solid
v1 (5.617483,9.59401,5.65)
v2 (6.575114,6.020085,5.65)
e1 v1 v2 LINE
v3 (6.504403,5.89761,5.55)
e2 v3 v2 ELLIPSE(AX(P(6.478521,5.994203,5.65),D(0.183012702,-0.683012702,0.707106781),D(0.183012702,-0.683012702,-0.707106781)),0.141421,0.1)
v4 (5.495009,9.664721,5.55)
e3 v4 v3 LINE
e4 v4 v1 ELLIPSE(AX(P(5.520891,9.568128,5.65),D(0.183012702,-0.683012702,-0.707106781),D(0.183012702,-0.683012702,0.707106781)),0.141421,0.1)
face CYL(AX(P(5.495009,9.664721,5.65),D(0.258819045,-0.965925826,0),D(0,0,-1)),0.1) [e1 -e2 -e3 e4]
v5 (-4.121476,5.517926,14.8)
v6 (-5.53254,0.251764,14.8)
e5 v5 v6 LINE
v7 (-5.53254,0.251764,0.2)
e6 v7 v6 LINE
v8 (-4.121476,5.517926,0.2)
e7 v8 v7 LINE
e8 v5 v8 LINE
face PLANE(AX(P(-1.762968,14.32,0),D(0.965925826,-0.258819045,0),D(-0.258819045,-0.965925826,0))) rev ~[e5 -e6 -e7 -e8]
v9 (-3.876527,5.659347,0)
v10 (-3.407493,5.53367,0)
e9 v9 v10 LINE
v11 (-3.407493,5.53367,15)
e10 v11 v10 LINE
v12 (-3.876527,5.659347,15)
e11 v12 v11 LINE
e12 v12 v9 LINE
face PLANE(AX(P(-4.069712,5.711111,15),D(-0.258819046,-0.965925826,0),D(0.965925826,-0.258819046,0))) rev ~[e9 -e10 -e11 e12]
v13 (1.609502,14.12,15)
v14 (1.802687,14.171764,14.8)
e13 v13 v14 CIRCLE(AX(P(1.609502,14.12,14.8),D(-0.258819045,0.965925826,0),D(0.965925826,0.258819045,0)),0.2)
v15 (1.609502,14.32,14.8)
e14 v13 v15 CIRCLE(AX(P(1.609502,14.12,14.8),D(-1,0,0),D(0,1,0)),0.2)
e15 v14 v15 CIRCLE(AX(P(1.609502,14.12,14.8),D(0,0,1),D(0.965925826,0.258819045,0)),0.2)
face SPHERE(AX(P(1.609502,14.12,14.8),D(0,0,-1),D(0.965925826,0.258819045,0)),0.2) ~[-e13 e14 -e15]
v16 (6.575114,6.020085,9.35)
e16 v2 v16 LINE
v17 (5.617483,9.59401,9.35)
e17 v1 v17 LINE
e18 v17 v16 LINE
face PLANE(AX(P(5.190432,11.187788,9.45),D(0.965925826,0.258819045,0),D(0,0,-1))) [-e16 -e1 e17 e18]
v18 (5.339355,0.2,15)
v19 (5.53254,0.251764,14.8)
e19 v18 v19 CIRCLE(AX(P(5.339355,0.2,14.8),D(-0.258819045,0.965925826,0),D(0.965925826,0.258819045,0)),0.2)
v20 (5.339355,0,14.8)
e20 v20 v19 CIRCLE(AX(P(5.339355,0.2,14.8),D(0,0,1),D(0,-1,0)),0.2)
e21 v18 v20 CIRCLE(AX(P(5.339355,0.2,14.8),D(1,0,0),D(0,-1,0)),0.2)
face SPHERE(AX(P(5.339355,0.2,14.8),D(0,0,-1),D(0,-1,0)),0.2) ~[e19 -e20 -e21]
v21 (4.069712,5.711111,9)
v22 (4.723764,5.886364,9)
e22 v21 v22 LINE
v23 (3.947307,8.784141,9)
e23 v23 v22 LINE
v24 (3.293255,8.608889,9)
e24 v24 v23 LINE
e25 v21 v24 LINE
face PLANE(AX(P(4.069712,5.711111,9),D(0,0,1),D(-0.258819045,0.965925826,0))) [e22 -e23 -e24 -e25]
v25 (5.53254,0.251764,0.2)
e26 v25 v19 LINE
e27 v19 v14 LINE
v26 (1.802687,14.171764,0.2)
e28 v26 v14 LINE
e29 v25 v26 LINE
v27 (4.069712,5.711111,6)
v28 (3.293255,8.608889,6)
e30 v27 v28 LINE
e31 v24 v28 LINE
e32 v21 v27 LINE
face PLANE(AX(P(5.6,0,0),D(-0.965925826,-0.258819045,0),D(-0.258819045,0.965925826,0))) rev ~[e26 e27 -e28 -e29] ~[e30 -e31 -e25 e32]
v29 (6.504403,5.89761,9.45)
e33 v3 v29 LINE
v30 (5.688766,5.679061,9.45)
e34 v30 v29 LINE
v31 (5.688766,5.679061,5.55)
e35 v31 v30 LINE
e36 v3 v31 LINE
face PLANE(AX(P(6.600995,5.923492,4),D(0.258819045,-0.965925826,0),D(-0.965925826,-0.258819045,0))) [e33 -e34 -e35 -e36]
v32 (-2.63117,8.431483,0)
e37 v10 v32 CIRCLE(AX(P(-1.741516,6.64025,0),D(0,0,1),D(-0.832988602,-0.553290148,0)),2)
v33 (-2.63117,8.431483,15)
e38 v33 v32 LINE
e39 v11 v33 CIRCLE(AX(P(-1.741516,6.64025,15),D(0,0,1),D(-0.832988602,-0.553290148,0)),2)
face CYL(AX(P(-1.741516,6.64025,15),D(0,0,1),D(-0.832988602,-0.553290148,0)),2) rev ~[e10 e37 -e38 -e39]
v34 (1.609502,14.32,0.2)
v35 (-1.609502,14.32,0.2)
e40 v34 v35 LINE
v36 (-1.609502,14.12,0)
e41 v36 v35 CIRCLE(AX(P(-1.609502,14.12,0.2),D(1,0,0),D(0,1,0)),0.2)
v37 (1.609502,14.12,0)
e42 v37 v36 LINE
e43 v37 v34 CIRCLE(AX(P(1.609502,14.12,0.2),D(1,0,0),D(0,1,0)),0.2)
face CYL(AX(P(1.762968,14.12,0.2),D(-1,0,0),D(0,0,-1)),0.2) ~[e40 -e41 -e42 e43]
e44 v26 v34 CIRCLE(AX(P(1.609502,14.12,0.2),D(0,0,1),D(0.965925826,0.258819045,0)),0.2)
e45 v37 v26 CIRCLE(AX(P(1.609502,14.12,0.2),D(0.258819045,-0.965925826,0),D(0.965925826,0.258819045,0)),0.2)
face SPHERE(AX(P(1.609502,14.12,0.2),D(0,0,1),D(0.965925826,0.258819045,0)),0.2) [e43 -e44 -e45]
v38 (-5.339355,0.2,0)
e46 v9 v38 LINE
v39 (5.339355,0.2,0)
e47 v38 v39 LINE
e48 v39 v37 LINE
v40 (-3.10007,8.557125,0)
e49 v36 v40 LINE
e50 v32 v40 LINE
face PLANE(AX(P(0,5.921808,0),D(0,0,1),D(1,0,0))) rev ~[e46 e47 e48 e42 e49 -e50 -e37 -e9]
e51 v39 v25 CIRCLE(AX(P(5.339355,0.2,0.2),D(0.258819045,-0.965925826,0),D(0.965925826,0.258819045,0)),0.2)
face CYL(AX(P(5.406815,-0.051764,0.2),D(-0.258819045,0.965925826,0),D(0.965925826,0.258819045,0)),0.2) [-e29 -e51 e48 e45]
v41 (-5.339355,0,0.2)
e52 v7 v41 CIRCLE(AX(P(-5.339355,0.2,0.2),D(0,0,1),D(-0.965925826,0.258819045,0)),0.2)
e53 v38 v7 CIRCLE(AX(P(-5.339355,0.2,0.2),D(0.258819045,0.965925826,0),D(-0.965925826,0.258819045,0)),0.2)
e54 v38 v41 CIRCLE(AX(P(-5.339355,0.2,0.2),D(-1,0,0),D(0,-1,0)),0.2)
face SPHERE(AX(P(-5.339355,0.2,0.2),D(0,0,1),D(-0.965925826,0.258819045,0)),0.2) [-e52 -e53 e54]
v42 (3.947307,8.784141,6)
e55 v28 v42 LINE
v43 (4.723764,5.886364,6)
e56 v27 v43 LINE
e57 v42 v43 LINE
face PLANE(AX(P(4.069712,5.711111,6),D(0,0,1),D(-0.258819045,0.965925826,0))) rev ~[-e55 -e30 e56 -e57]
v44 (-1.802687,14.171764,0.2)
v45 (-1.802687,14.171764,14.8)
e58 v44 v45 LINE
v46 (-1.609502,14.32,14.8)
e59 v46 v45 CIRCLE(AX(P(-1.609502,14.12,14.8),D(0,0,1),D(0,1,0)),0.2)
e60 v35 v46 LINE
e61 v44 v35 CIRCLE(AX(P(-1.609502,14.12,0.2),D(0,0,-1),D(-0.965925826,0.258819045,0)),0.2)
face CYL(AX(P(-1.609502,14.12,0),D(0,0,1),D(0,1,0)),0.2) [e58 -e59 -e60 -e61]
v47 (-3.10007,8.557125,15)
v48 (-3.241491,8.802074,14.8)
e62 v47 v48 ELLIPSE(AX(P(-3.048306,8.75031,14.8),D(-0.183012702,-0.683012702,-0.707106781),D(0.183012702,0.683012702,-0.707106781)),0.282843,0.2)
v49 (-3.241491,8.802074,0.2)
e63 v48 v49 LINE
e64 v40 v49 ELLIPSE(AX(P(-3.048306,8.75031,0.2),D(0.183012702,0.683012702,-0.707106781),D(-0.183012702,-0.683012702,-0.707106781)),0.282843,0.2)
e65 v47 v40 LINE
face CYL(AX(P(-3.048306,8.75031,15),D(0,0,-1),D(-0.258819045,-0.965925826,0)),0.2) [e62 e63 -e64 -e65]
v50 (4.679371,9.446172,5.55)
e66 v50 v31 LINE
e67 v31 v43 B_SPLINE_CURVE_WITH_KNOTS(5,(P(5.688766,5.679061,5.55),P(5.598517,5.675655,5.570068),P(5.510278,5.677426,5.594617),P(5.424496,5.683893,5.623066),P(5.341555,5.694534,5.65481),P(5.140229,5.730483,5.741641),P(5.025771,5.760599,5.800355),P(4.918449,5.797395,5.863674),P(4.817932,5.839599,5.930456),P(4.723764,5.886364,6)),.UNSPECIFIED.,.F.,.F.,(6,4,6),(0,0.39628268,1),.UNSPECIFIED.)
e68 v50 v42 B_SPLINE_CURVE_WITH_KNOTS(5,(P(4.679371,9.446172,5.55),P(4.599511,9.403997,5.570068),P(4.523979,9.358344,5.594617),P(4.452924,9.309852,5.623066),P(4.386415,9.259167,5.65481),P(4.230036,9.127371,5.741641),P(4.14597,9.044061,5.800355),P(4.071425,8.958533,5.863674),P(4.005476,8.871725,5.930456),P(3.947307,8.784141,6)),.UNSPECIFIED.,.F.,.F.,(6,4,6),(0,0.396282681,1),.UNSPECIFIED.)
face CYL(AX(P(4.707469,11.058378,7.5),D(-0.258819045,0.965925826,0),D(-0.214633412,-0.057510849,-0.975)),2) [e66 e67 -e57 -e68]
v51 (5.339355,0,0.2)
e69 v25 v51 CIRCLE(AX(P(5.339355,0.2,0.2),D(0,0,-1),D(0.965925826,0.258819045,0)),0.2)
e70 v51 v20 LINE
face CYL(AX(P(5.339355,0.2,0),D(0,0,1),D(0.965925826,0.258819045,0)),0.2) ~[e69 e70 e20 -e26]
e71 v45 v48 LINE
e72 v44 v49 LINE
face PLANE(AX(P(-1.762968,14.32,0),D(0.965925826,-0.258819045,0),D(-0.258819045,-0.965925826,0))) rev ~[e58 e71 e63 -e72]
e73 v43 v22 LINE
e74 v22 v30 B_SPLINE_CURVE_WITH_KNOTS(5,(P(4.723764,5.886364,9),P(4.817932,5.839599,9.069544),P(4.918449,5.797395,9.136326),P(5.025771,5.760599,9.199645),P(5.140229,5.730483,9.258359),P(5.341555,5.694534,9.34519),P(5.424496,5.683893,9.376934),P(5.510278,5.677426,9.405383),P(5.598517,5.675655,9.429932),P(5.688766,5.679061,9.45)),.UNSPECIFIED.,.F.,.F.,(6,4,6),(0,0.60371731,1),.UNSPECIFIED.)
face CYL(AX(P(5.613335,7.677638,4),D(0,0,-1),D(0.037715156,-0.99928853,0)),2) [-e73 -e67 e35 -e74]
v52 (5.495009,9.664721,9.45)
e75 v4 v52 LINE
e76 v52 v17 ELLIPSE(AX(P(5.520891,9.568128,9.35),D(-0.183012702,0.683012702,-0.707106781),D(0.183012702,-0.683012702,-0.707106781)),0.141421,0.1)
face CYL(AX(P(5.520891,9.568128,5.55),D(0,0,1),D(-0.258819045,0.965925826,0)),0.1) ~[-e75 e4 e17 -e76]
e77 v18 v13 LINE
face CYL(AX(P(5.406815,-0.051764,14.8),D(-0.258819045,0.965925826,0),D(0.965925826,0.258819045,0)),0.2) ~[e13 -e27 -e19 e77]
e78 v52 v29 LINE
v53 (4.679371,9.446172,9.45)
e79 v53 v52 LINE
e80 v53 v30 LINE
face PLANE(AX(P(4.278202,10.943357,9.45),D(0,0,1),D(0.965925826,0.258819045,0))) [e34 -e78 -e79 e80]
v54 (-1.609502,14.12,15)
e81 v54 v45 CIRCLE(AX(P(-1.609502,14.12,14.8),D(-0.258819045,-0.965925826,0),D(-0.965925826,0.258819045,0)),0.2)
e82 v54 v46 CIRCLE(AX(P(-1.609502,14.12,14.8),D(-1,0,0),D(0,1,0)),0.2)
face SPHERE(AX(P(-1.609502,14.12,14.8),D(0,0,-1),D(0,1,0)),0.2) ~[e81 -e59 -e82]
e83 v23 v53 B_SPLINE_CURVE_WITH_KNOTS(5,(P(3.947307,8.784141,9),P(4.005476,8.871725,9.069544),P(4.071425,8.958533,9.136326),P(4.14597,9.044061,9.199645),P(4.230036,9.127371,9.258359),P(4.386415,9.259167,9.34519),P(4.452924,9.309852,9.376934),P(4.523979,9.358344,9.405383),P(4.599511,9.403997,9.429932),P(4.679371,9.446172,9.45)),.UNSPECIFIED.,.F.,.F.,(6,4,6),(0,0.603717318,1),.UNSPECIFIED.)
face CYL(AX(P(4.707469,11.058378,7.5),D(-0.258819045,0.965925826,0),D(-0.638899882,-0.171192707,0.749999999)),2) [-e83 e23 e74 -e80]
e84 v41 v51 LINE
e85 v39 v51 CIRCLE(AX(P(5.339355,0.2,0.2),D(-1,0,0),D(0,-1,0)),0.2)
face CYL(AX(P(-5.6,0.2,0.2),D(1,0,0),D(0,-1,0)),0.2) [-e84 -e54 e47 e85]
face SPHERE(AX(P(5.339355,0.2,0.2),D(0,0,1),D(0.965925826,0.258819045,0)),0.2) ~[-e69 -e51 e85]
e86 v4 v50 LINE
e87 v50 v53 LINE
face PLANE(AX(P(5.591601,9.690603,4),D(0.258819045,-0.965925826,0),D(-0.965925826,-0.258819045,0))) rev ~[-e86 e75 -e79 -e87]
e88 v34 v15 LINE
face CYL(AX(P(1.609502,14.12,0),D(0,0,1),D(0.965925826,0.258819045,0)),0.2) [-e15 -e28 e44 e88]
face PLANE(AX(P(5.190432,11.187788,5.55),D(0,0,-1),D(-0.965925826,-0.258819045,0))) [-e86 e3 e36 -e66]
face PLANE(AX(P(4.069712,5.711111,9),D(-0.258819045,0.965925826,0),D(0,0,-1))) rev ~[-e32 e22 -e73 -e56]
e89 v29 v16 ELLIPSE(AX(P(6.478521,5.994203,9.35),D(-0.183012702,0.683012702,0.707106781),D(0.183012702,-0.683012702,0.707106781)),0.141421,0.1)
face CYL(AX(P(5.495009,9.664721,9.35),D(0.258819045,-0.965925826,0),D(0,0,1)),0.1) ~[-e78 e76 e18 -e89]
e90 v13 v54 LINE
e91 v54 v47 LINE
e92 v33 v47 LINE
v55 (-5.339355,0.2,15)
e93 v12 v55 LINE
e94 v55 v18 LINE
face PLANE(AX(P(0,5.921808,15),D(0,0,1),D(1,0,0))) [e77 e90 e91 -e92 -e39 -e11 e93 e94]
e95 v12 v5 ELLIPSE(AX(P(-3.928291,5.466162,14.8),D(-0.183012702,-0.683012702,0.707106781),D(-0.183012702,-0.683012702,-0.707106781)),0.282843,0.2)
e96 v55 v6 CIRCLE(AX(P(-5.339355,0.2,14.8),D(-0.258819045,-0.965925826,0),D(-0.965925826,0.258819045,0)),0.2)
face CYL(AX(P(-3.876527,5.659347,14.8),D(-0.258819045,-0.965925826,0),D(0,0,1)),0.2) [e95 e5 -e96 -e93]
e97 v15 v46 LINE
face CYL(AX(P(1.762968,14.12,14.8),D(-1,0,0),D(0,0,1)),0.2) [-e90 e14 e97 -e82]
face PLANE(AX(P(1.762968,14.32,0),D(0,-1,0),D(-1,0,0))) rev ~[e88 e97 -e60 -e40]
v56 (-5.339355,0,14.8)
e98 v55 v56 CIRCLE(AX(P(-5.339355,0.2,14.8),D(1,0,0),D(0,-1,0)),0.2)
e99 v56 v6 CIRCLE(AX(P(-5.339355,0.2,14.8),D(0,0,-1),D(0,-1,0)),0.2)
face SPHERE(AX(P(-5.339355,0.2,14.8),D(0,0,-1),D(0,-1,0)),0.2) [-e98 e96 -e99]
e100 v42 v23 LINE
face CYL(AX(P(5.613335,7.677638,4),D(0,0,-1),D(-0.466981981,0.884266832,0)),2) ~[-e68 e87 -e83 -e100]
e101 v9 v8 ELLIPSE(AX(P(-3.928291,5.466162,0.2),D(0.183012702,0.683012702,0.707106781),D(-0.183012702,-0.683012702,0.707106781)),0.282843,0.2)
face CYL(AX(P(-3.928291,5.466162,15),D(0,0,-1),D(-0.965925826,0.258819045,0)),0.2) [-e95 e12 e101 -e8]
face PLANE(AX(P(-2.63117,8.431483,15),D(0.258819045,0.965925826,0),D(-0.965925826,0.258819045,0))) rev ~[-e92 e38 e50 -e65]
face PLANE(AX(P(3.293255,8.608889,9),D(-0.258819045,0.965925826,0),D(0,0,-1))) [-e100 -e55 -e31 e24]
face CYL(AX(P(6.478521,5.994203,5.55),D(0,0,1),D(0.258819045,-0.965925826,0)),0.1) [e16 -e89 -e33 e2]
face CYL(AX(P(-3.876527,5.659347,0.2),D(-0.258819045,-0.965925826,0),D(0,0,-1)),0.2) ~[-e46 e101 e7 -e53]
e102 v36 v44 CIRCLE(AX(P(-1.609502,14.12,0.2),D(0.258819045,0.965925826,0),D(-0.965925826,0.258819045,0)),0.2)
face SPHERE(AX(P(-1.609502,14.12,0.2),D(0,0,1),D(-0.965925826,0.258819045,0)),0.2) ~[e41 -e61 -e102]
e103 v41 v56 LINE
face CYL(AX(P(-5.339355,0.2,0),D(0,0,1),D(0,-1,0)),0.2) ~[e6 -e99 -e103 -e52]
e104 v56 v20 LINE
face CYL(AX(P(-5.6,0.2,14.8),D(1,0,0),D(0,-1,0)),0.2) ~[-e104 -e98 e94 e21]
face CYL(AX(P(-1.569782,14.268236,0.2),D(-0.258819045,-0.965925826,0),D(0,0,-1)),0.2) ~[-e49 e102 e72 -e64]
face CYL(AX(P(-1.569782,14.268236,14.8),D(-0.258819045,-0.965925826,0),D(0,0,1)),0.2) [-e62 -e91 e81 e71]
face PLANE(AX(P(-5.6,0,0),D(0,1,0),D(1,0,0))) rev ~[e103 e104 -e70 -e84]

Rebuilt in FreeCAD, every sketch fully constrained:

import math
import FreeCAD as App
import Part
import Sketcher

V = App.Vector
Q = App.Units.Quantity


def edges_at(feature, points):
    """Names of the edges that pass closest to the given points."""
    edges = feature.Shape.Edges
    near = lambda p: min(range(len(edges)), key=lambda i: edges[i].distToShape(Part.Vertex(*p))[0])
    return sorted({f"Edge{near(p) + 1}" for p in points})


def add_polygon(sketch, points):
    """Adds a closed chain of lines whose ends are joined by coincident constraints."""
    first, n = sketch.GeometryCount, len(points)
    for a, b in zip(points, points[1:] + points[:1]):
        sketch.addGeometry(Part.LineSegment(App.Vector(*a, 0), App.Vector(*b, 0)), False)
    for i in range(n):
        sketch.addConstraint(Sketcher.Constraint("Coincident", first + i, 2, first + (i + 1) % n, 1))

doc = App.newDocument("Part")
body = doc.addObject("PartDesign::Body", "Body")

sketch1 = body.newObject("Sketcher::SketchObject", "Sketch")
sketch1.AttachmentSupport = (doc.getObject("XY_Plane"), [""])
sketch1.MapMode = "FlatFace"
add_polygon(sketch1, [(-5.6, 0), (5.6, 0), (1.762968, 14.32), (-1.762968, 14.32)])
sketch1.addConstraint([
    Sketcher.Constraint("Horizontal", 0),
    Sketcher.Constraint("Horizontal", 2),
    Sketcher.Constraint("Symmetric", 0, 2, 3, 2, -1, 1),
    Sketcher.Constraint("Equal", 1, 3),
    Sketcher.Constraint("Angle", 1, Q("105 deg")),
    Sketcher.Constraint("DistanceX", 0, 1, 0, 2, 11.2),
    Sketcher.Constraint("DistanceY", -1, 1, 1, 2, 14.32),
])
pad1 = body.newObject("PartDesign::Pad", "Pad")
pad1.Profile = sketch1
pad1.Length = 15

sketch2 = body.newObject("Sketcher::SketchObject", "Sketch001")
sketch2.AttachmentSupport = (doc.getObject("XY_Plane"), [""])
sketch2.MapMode = "FlatFace"
sketch2.AttachmentOffset = App.Placement(V(0, 0, 15), App.Rotation())
sketch2.addGeometry([
    Part.LineSegment(V(-3.681484, 7.16, 0), V(-4.069712, 5.711111, 0)),
    Part.LineSegment(V(-4.069712, 5.711111, 0), V(-3.407493, 5.53367, 0)),
    Part.ArcOfCircle(Part.Circle(V(-1.741516, 6.64025, 0), V(0, 0, 1), 2), math.radians(-146.406975), math.radians(116.412269)),
    Part.LineSegment(V(-2.63117, 8.431483, 0), V(-3.293255, 8.608889, 0)),
    Part.LineSegment(V(-3.293255, 8.608889, 0), V(-3.681484, 7.16, 0)),
], False)
sketch2.addConstraint([
    Sketcher.Constraint("Coincident", 0, 2, 1, 1),
    Sketcher.Constraint("Coincident", 1, 2, 2, 1),
    Sketcher.Constraint("Coincident", 2, 2, 3, 1),
    Sketcher.Constraint("Coincident", 3, 2, 4, 1),
    Sketcher.Constraint("Coincident", 4, 2, 0, 1),
    Sketcher.Constraint("Perpendicular", 0, 1),
    Sketcher.Constraint("Parallel", 1, 3),
    Sketcher.Constraint("Perpendicular", 3, 4),
    Sketcher.Constraint("Equal", 0, 4),
    Sketcher.Constraint("Radius", 2, 2.0),
    Sketcher.Constraint("Angle", 0, Q("-105 deg")),
    Sketcher.Constraint("Distance", 0, 1.5),
    Sketcher.Constraint("DistanceY", -1, 1, 4, 2, 7.16),
    Sketcher.Constraint("Distance", 1, 0.68558),
    Sketcher.Constraint("Distance", 3, 0.685442),
    Sketcher.Constraint("DistanceX", 2, 2, -1, 1, 2.63117),
])
pocket1 = body.newObject("PartDesign::Pocket", "Pocket")
pocket1.Profile = sketch2
pocket1.Length = 15

sketch3 = body.newObject("Sketcher::SketchObject", "Sketch002")
sketch3.Placement = App.Placement(V(5.224871, 1.4, 0), App.Rotation(V(0, 0, -1), V(-0.258819045, 0.965925826, 0), V(0.965925826, 0.258819045, 0), "ZXY"))
add_polygon(sketch3, [(-9, 7.463191), (-9, 4.463191), (-6, 4.463191), (-6, 7.463191)])
sketch3.addConstraint([
    Sketcher.Constraint("Vertical", 0),
    Sketcher.Constraint("Horizontal", 1),
    Sketcher.Constraint("Vertical", 2),
    Sketcher.Constraint("Horizontal", 3),
    Sketcher.Constraint("Equal", 3, 0),
    Sketcher.Constraint("DistanceX", 1, 1, 1, 2, 3.0),
    Sketcher.Constraint("DistanceX", 0, 2, -1, 1, 9.0),
    Sketcher.Constraint("DistanceY", -1, 1, 0, 2, 4.463191),
])
pad2 = body.newObject("PartDesign::Pad", "Pad001")
pad2.Profile = sketch3
pad2.Length = 0.68

sketch4 = body.newObject("Sketcher::SketchObject", "Sketch003")
sketch4.Placement = App.Placement(V(-1.155159, 4.311111, 0), App.Rotation(V(0.965925826, 0.258819045, 0), V(0, 0, 0.999999999), V(0.258819045, -0.965925826, 0), "ZXY"))
sketch4.addGeometry([
    Part.LineSegment(V(6.964775, 5.55, 0), V(7.909185, 5.55, 0)),
    Part.LineSegment(V(7.909185, 5.55, 0), V(7.909185, 9.45, 0)),
    Part.LineSegment(V(7.909185, 9.45, 0), V(6.964775, 9.45, 0)),
    Part.ArcOfCircle(Part.Circle(V(7.409185, 7.5, 0), V(0, 0, 1), 2), math.radians(102.838568), math.radians(131.409622)),
    Part.LineSegment(V(6.086309, 9, 0), V(6.086309, 6, 0)),
    Part.ArcOfCircle(Part.Circle(V(7.409185, 7.5, 0), V(0, 0, 1), 2), math.radians(-131.409622), math.radians(-102.838568)),
], False)
sketch4.addConstraint([
    Sketcher.Constraint("Coincident", 0, 2, 1, 1),
    Sketcher.Constraint("Coincident", 1, 2, 2, 1),
    Sketcher.Constraint("Coincident", 2, 2, 3, 1),
    Sketcher.Constraint("Coincident", 3, 2, 4, 1),
    Sketcher.Constraint("Coincident", 4, 2, 5, 1),
    Sketcher.Constraint("Coincident", 5, 2, 0, 1),
    Sketcher.Constraint("Horizontal", 0),
    Sketcher.Constraint("Vertical", 1),
    Sketcher.Constraint("Horizontal", 2),
    Sketcher.Constraint("Vertical", 4),
    Sketcher.Constraint("Coincident", 5, 3, 3, 3),
    Sketcher.Constraint("Equal", 3, 5),
    Sketcher.Constraint("Vertical", 2, 2, 5, 2),
    Sketcher.Constraint("Radius", 3, 2.0),
    Sketcher.Constraint("DistanceY", 4, 2, 4, 1, 3.0),
    Sketcher.Constraint("DistanceY", 1, 1, 1, 2, 3.9),
    Sketcher.Constraint("DistanceY", -1, 1, 3, 2, 9.0),
    Sketcher.Constraint("DistanceX", 5, 3, 0, 2, 0.5),
    Sketcher.Constraint("DistanceX", -1, 1, 3, 2, 6.086309),
])
pad3 = body.newObject("PartDesign::Pad", "Pad002")
pad3.Profile = sketch4
pad3.Type = "TwoLengths"
pad3.Length = 5
pad3.Length2 = 5

sketch5 = body.newObject("Sketcher::SketchObject", "Sketch004")
sketch5.AttachmentSupport = (doc.getObject("XY_Plane"), [""])
sketch5.MapMode = "FlatFace"
sketch5.AttachmentOffset = App.Placement(V(0, 0, 9), App.Rotation())
sketch5.addGeometry([
    Part.LineSegment(V(4.679371, 9.446172, 0), V(5.591601, 9.690603, 0)),
    Part.LineSegment(V(5.591601, 9.690603, 0), V(5.190432, 11.187788, 0)),
    Part.LineSegment(V(5.190432, 11.187788, 0), V(4.278202, 10.943357, 0)),
    Part.LineSegment(V(4.278202, 10.943357, 0), V(3.429669, 10.715993, 0)),
    Part.LineSegment(V(3.429669, 10.715993, 0), V(3.947307, 8.784141, 0)),
    Part.ArcOfCircle(Part.Circle(V(5.613335, 7.677638, 0), V(0, 0, 1), 2), math.radians(117.838568), math.radians(146.409622)),
    Part.LineSegment(V(6.600995, 5.923492, 0), V(5.688766, 5.679061, 0)),
    Part.ArcOfCircle(Part.Circle(V(5.613335, 7.677638, 0), V(0, 0, 1), 2), math.radians(-116.409622), math.radians(-87.838568)),
    Part.LineSegment(V(4.723764, 5.886364, 0), V(6.017859, 1.056735, 0)),
    Part.LineSegment(V(6.017859, 1.056735, 0), V(6.866392, 1.284099, 0)),
    Part.LineSegment(V(6.866392, 1.284099, 0), V(7.778622, 1.52853, 0)),
    Part.LineSegment(V(7.778622, 1.52853, 0), V(6.600995, 5.923492, 0)),
], False)
sketch5.addConstraint([
    Sketcher.Constraint("Coincident", 0, 2, 1, 1),
    Sketcher.Constraint("Coincident", 1, 2, 2, 1),
    Sketcher.Constraint("Coincident", 2, 2, 3, 1),
    Sketcher.Constraint("Coincident", 3, 2, 4, 1),
    Sketcher.Constraint("Coincident", 4, 2, 5, 2),
    Sketcher.Constraint("Coincident", 5, 1, 0, 1),
    Sketcher.Constraint("Coincident", 6, 2, 7, 2),
    Sketcher.Constraint("Coincident", 7, 1, 8, 1),
    Sketcher.Constraint("Coincident", 8, 2, 9, 1),
    Sketcher.Constraint("Coincident", 9, 2, 10, 1),
    Sketcher.Constraint("Coincident", 10, 2, 11, 1),
    Sketcher.Constraint("Coincident", 11, 2, 6, 1),
    Sketcher.Constraint("Coincident", 7, 3, 5, 3),
    Sketcher.Constraint("Equal", 5, 7),
    Sketcher.Constraint("Perpendicular", 0, 1),
    Sketcher.Constraint("Perpendicular", 1, 2),
    Sketcher.Constraint("Parallel", 2, 3),
    Sketcher.Constraint("Perpendicular", 3, 4),
    Sketcher.Constraint("Perpendicular", 4, 6),
    Sketcher.Constraint("Perpendicular", 6, 8),
    Sketcher.Constraint("Perpendicular", 8, 9),
    Sketcher.Constraint("Parallel", 9, 10),
    Sketcher.Constraint("Perpendicular", 10, 11),
    Sketcher.Constraint("Equal", 0, 2),
    Sketcher.Constraint("Equal", 2, 6),
    Sketcher.Constraint("Equal", 3, 9),
    Sketcher.Constraint("Equal", 6, 10),
    Sketcher.Constraint("Radius", 5, 2.0),
    Sketcher.Constraint("Angle", 0, Q("15 deg")),
    Sketcher.Constraint("Distance", 4, 2.0),
    Sketcher.Constraint("Distance", 8, 5.0),
    Sketcher.Constraint("Distance", 1, 1.55),
    Sketcher.Constraint("Distance", 11, 4.55),
    Sketcher.Constraint("DistanceX", 7, 1, 6, 2, 0.965002),
    Sketcher.Constraint("DistanceX", -1, 1, 0, 2, 5.591601),
    Sketcher.Constraint("DistanceX", -1, 1, 2, 2, 4.278202),
    Sketcher.Constraint("DistanceY", -1, 1, 9, 2, 1.284099),
])
pocket2 = body.newObject("PartDesign::Pocket", "Pocket001")
pocket2.Profile = sketch5
pocket2.Type = "ThroughAll"
pocket2.Midplane = True
doc.recompute()

fillet = body.newObject("PartDesign::Fillet", "Fillet")
fillet.Base = (pocket2, edges_at(pocket2, [
    (0, 0, 15),
    (3.681, 7.16, 15),
    (-4.835, 2.856, 0),
    (-4.835, 2.856, 15),
    (-3.293, 8.609, 7.5),
    (-4.07, 5.711, 7.5),
    (0, 14.32, 15),
    (3.681, 7.16, 0),
    (0, 0, 0),
    (-2.528, 11.464, 0),
    (0, 14.32, 0),
    (-2.528, 11.464, 15),
    (1.763, 14.32, 7.5),
    (5.6, 0, 7.5),
    (-5.6, 0, 7.5),
    (-1.763, 14.32, 7.5),
]))
fillet.Radius = 0.2
doc.recompute()

fillet2 = body.newObject("PartDesign::Fillet", "Fillet001")
fillet2.Base = (fillet, edges_at(fillet, [
    (6.096, 7.807, 9.45),
    (6.096, 7.807, 5.55),
    (5.592, 9.691, 7.5),
    (6.601, 5.923, 7.5),
]))
fillet2.Radius = 0.1

doc.recompute()
